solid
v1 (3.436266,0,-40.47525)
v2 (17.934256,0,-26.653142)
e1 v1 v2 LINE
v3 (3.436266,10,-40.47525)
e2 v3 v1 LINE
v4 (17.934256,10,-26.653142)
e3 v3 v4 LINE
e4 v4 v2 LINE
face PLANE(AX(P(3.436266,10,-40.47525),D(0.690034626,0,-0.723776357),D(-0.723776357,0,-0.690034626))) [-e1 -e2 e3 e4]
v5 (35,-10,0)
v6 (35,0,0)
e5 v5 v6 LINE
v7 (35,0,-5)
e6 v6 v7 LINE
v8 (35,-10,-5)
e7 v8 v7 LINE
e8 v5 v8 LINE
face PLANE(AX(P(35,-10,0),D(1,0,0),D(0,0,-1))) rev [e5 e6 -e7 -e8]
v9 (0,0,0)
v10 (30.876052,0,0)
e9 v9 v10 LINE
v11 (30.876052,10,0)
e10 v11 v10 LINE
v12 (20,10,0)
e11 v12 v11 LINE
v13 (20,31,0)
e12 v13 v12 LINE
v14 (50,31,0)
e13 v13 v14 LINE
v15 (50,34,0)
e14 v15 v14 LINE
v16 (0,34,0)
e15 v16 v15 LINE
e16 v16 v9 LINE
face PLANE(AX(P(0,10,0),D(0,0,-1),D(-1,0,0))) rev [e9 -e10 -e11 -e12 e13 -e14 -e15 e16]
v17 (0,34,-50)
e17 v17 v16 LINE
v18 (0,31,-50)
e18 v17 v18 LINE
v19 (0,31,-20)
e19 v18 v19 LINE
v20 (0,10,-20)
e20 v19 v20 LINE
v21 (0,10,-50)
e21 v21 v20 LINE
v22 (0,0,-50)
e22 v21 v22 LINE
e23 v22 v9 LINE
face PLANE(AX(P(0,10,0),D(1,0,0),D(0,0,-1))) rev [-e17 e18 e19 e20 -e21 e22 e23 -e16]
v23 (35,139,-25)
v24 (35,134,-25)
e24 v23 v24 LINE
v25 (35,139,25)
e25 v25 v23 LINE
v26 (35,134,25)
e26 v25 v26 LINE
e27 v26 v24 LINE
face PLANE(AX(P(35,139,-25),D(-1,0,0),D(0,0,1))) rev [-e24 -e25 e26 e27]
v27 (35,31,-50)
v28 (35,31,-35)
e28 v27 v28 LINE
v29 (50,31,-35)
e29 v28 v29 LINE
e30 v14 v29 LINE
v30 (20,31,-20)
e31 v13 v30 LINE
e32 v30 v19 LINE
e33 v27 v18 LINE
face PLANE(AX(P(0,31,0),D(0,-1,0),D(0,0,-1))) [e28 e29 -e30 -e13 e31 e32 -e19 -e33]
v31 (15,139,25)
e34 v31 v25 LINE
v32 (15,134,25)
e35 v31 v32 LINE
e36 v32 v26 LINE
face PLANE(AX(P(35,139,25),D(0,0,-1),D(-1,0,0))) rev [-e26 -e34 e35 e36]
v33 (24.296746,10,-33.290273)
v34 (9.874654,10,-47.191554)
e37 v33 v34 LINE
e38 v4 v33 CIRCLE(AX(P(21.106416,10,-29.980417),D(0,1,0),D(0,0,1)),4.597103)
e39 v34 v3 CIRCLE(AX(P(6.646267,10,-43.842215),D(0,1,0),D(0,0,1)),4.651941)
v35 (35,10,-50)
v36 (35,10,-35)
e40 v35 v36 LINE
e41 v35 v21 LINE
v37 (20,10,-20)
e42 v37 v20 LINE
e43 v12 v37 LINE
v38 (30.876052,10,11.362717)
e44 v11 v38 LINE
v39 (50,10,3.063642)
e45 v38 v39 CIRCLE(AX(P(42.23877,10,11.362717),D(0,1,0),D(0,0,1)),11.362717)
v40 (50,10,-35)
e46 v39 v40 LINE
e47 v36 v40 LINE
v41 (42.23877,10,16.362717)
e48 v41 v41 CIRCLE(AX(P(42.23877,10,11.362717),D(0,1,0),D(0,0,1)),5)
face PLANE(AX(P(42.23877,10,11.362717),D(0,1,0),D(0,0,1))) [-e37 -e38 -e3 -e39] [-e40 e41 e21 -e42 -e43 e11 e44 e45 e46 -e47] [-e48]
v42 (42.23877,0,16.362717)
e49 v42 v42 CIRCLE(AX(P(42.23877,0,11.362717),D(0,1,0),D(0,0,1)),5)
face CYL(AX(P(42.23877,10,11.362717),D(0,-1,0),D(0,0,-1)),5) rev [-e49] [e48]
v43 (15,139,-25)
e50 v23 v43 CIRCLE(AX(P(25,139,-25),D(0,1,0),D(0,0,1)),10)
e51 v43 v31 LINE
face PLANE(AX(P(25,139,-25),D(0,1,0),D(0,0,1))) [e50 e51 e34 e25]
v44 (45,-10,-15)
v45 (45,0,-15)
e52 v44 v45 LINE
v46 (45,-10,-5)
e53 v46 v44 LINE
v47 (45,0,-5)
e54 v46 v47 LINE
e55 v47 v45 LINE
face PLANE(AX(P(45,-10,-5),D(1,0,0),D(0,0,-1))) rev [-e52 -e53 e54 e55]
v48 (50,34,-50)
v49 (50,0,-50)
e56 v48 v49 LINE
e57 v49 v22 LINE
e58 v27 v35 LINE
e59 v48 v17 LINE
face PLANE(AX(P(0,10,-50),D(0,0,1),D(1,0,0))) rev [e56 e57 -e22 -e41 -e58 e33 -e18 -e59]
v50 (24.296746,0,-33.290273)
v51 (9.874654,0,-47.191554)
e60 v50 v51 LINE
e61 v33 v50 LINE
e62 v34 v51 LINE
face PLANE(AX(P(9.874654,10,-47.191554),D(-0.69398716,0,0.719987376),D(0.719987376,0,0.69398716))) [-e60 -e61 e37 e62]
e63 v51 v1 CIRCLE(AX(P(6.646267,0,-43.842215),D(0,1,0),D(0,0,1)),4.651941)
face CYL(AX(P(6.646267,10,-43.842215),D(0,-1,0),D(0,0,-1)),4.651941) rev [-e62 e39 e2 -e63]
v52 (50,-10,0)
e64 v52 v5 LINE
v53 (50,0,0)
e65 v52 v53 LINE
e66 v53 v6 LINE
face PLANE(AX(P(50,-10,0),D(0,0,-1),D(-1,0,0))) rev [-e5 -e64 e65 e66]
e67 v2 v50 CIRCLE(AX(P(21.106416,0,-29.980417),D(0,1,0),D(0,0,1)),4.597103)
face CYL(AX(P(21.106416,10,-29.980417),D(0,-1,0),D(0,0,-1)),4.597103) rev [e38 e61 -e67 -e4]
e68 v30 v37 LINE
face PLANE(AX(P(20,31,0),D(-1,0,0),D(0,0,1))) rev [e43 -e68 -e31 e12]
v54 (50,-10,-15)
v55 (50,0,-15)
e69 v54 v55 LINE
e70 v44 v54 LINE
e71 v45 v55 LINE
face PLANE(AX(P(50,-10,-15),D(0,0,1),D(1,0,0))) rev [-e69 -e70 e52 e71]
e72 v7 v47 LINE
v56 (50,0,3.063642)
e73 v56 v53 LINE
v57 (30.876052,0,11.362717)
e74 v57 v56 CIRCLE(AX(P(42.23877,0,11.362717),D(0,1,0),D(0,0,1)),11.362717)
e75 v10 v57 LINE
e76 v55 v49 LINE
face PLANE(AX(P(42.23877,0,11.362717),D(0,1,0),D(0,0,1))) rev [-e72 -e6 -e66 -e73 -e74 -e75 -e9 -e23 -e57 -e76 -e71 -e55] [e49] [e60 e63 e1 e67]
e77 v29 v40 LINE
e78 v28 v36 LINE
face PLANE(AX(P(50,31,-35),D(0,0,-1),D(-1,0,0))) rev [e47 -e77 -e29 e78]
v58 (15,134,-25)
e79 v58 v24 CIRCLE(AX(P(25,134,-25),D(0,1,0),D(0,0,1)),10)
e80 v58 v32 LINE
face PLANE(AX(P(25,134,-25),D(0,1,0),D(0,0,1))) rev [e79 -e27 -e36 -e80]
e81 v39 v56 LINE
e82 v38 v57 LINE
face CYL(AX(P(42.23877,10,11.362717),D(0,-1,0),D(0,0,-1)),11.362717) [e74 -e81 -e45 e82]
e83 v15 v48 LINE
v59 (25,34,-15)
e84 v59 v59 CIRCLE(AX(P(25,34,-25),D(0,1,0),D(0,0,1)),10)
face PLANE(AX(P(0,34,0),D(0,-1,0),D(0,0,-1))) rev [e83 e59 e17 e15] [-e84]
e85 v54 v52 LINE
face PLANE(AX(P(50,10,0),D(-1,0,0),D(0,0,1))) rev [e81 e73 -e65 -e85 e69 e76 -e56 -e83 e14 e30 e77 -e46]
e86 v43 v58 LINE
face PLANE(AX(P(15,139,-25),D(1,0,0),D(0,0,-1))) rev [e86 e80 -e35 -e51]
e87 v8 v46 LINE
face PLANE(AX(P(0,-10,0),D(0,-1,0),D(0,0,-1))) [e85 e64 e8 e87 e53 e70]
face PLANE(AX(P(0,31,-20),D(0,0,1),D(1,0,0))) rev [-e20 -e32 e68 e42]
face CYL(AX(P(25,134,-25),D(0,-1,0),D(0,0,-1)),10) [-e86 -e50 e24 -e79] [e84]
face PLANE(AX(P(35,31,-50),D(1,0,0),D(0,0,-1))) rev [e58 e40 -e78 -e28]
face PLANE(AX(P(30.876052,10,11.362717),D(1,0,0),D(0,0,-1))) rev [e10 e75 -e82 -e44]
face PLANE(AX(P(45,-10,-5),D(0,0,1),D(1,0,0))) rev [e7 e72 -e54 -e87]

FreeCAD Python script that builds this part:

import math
import FreeCAD as App
import Part
import Sketcher
from FreeCAD import Vector

doc = App.newDocument("Part")
body = doc.addObject("PartDesign::Body", "Body")

sketch1 = body.newObject("Sketcher::SketchObject", "Sketch")
sketch1.AttachmentSupport = (doc.getObject("XZ_Plane"), [""])
sketch1.MapMode = "FlatFace"
sketch1.addGeometry([
    Part.LineSegment(Vector(0, 0, 0), Vector(30.9, 0, 0)),
    Part.LineSegment(Vector(30.9, 0, 0), Vector(30.9, 11.4, 0)),
    Part.ArcOfCircle(Part.Circle(Vector(42.2, 11.4, 0), Vector(0, 0, 1), 11.4), math.radians(-47), math.radians(180)),
    Part.LineSegment(Vector(50, 3.1, 0), Vector(50, -50, 0)),
    Part.LineSegment(Vector(50, -50, 0), Vector(0, -50, 0)),
    Part.LineSegment(Vector(0, -50, 0), Vector(0, 0, 0)),
    Part.Circle(Vector(42.2, 11.4, 0), Vector(0, 0, 1), 5),
    Part.ArcOfCircle(Part.Circle(Vector(6.6, -43.8, 0), Vector(0, 0, 1), 4.7), math.radians(134), math.radians(314)),
    Part.LineSegment(Vector(9.9, -47.2, 0), Vector(24.3, -33.3, 0)),
    Part.ArcOfCircle(Part.Circle(Vector(21.1, -30, 0), Vector(0, 0, 1), 4.6), math.radians(-46), math.radians(134)),
    Part.LineSegment(Vector(17.9, -26.7, 0), Vector(3.4, -40.5, 0)),
], False)
sketch1.addConstraint([
    Sketcher.Constraint("Coincident", 0, 2, 1, 1),
    Sketcher.Constraint("Tangent", 1, 2, 2, 2),
    Sketcher.Constraint("Coincident", 2, 1, 3, 1),
    Sketcher.Constraint("Coincident", 3, 2, 4, 1),
    Sketcher.Constraint("Coincident", 4, 2, 5, 1),
    Sketcher.Constraint("Coincident", 5, 2, 0, 1),
    Sketcher.Constraint("Tangent", 7, 2, 8, 1),
    Sketcher.Constraint("Tangent", 8, 2, 9, 1),
    Sketcher.Constraint("Tangent", 9, 2, 10, 1),
    Sketcher.Constraint("Tangent", 10, 2, 7, 1),
    Sketcher.Constraint("Horizontal", 0),
    Sketcher.Constraint("Vertical", 1),
    Sketcher.Constraint("Vertical", 3),
    Sketcher.Constraint("Horizontal", 4),
    Sketcher.Constraint("Vertical", 5),
    Sketcher.Constraint("Coincident", 5, 2, -1, 1),
    Sketcher.Constraint("Coincident", 6, 3, 2, 3),
    Sketcher.Constraint("Equal", 4, 5),
    Sketcher.Constraint("Diameter", 6, 10.0),
    Sketcher.Constraint("DistanceX", 4, 2, 4, 1, 50.0),
    Sketcher.Constraint("Radius", 7, 4.651941),
    Sketcher.Constraint("DistanceX", 10, 2, 7, 3, 3.210001),
    Sketcher.Constraint("Radius", 2, 11.362717),
    Sketcher.Constraint("Radius", 9, 4.597103),
    Sketcher.Constraint("DistanceY", 7, 3, 9, 3, 13.861798),
    Sketcher.Constraint("DistanceX", 0, 1, 0, 2, 30.876052),
    Sketcher.Constraint("DistanceY", 1, 1, 1, 2, 11.362717),
    Sketcher.Constraint("DistanceY", 10, 2, -1, 1, 40.47525),
    Sketcher.Constraint("DistanceX", -1, 1, 7, 3, 6.646267),
])
pad1 = body.newObject("PartDesign::Pad", "Pad")
pad1.Profile = sketch1
pad1.Length = 10
pad1.Reversed = True

sketch2 = body.newObject("Sketcher::SketchObject", "Sketch001")
sketch2.AttachmentSupport = (doc.getObject("XZ_Plane"), [""])
sketch2.MapMode = "FlatFace"
sketch2.addGeometry([
    Part.LineSegment(Vector(35, -5, 0), Vector(45, -5, 0)),
    Part.LineSegment(Vector(45, -5, 0), Vector(45, -15, 0)),
    Part.LineSegment(Vector(45, -15, 0), Vector(50, -15, 0)),
    Part.LineSegment(Vector(50, -15, 0), Vector(50, 0, 0)),
    Part.LineSegment(Vector(50, 0, 0), Vector(35, 0, 0)),
    Part.LineSegment(Vector(35, 0, 0), Vector(35, -5, 0)),
], False)
sketch2.addConstraint([
    Sketcher.Constraint("Coincident", 0, 2, 1, 1),
    Sketcher.Constraint("Coincident", 1, 2, 2, 1),
    Sketcher.Constraint("Coincident", 2, 2, 3, 1),
    Sketcher.Constraint("Coincident", 3, 2, 4, 1),
    Sketcher.Constraint("Coincident", 4, 2, 5, 1),
    Sketcher.Constraint("Coincident", 5, 2, 0, 1),
    Sketcher.Constraint("Horizontal", 0),
    Sketcher.Constraint("Vertical", 1),
    Sketcher.Constraint("Horizontal", 2),
    Sketcher.Constraint("Vertical", 3),
    Sketcher.Constraint("Horizontal", 4),
    Sketcher.Constraint("Vertical", 5),
    Sketcher.Constraint("PointOnObject", 3, 2, -1),
    Sketcher.Constraint("Equal", 0, 1),
    Sketcher.Constraint("Equal", 4, 3),
    Sketcher.Constraint("DistanceX", 0, 1, 0, 2, 10.0),
    Sketcher.Constraint("DistanceX", 2, 1, 2, 2, 5.0),
    Sketcher.Constraint("DistanceX", -1, 1, 0, 2, 45.0),
])
pad2 = body.newObject("PartDesign::Pad", "Pad001")
pad2.Profile = sketch2
pad2.Length = 10

sketch3 = body.newObject("Sketcher::SketchObject", "Sketch002")
sketch3.AttachmentSupport = (doc.getObject("XZ_Plane"), [""])
sketch3.MapMode = "FlatFace"
sketch3.AttachmentOffset = App.Placement(Vector(0, 0, -10), App.Rotation())
sketch3.addGeometry([
    Part.LineSegment(Vector(0, -20, 0), Vector(0, 0, 0)),
    Part.LineSegment(Vector(0, 0, 0), Vector(20, 0, 0)),
    Part.LineSegment(Vector(20, 0, 0), Vector(20, -20, 0)),
    Part.LineSegment(Vector(20, -20, 0), Vector(0, -20, 0)),
    Part.LineSegment(Vector(35, -50, 0), Vector(35, -35, 0)),
    Part.LineSegment(Vector(35, -35, 0), Vector(50, -35, 0)),
    Part.LineSegment(Vector(50, -35, 0), Vector(50, -50, 0)),
    Part.LineSegment(Vector(50, -50, 0), Vector(35, -50, 0)),
], False)
sketch3.addConstraint([
    Sketcher.Constraint("Coincident", 0, 2, 1, 1),
    Sketcher.Constraint("Coincident", 1, 2, 2, 1),
    Sketcher.Constraint("Coincident", 2, 2, 3, 1),
    Sketcher.Constraint("Coincident", 3, 2, 0, 1),
    Sketcher.Constraint("Coincident", 4, 2, 5, 1),
    Sketcher.Constraint("Coincident", 5, 2, 6, 1),
    Sketcher.Constraint("Coincident", 6, 2, 7, 1),
    Sketcher.Constraint("Coincident", 7, 2, 4, 1),
    Sketcher.Constraint("Vertical", 0),
    Sketcher.Constraint("Horizontal", 1),
    Sketcher.Constraint("Vertical", 2),
    Sketcher.Constraint("Horizontal", 3),
    Sketcher.Constraint("Vertical", 4),
    Sketcher.Constraint("Horizontal", 5),
    Sketcher.Constraint("Vertical", 6),
    Sketcher.Constraint("Horizontal", 7),
    Sketcher.Constraint("Coincident", 0, 2, -1, 1),
    Sketcher.Constraint("Equal", 3, 0),
    Sketcher.Constraint("Equal", 7, 4),
    Sketcher.Constraint("DistanceX", 1, 1, 1, 2, 20.0),
    Sketcher.Constraint("DistanceX", 5, 1, 5, 2, 15.0),
    Sketcher.Constraint("DistanceX", -1, 1, 4, 2, 35.0),
    Sketcher.Constraint("DistanceY", 4, 2, -1, 1, 35.0),
])
pad3 = body.newObject("PartDesign::Pad", "Pad002")
pad3.Profile = sketch3
pad3.Length = 21
pad3.Reversed = True

sketch4 = body.newObject("Sketcher::SketchObject", "Sketch003")
sketch4.AttachmentSupport = (doc.getObject("XZ_Plane"), [""])
sketch4.MapMode = "FlatFace"
sketch4.AttachmentOffset = App.Placement(Vector(0, 0, -31), App.Rotation())
sketch4.addGeometry([
    Part.LineSegment(Vector(0, -50, 0), Vector(0, 0, 0)),
    Part.LineSegment(Vector(0, 0, 0), Vector(50, 0, 0)),
    Part.LineSegment(Vector(50, 0, 0), Vector(50, -50, 0)),
    Part.LineSegment(Vector(50, -50, 0), Vector(0, -50, 0)),
], False)
sketch4.addConstraint([
    Sketcher.Constraint("Coincident", 0, 2, 1, 1),
    Sketcher.Constraint("Coincident", 1, 2, 2, 1),
    Sketcher.Constraint("Coincident", 2, 2, 3, 1),
    Sketcher.Constraint("Coincident", 3, 2, 0, 1),
    Sketcher.Constraint("Vertical", 0),
    Sketcher.Constraint("Horizontal", 1),
    Sketcher.Constraint("Vertical", 2),
    Sketcher.Constraint("Horizontal", 3),
    Sketcher.Constraint("Coincident", 0, 2, -1, 1),
    Sketcher.Constraint("Equal", 3, 0),
    Sketcher.Constraint("DistanceX", 1, 1, 1, 2, 50.0),
])
pad4 = body.newObject("PartDesign::Pad", "Pad003")
pad4.Profile = sketch4
pad4.Length = 3
pad4.Reversed = True

sketch5 = body.newObject("Sketcher::SketchObject", "Sketch004")
sketch5.AttachmentSupport = (doc.getObject("XZ_Plane"), [""])
sketch5.MapMode = "FlatFace"
sketch5.AttachmentOffset = App.Placement(Vector(0, 0, -34), App.Rotation())
sketch5.addGeometry(Part.Circle(Vector(25, -25, 0), Vector(0, 0, 1), 10), False)
sketch5.addConstraint([
    Sketcher.Constraint("Diameter", 0, 20.0),
    Sketcher.Constraint("DistanceX", -1, 1, 0, 3, 25.0),
    Sketcher.Constraint("DistanceY", 0, 3, -1, 1, 25.0),
])
pad5 = body.newObject("PartDesign::Pad", "Pad004")
pad5.Profile = sketch5
pad5.Length = 100
pad5.Reversed = True

sketch6 = body.newObject("Sketcher::SketchObject", "Sketch005")
sketch6.AttachmentSupport = (doc.getObject("XZ_Plane"), [""])
sketch6.MapMode = "FlatFace"
sketch6.AttachmentOffset = App.Placement(Vector(0, 0, -134), App.Rotation())
sketch6.addGeometry([
    Part.LineSegment(Vector(35, 25, 0), Vector(35, -25, 0)),
    Part.ArcOfCircle(Part.Circle(Vector(25, -25, 0), Vector(0, 0, 1), 10), math.radians(180), math.radians(360)),
    Part.LineSegment(Vector(15, -25, 0), Vector(15, 25, 0)),
    Part.LineSegment(Vector(15, 25, 0), Vector(35, 25, 0)),
], False)
sketch6.addConstraint([
    Sketcher.Constraint("Tangent", 0, 2, 1, 2),
    Sketcher.Constraint("Tangent", 1, 1, 2, 1),
    Sketcher.Constraint("Coincident", 2, 2, 3, 1),
    Sketcher.Constraint("Coincident", 3, 2, 0, 1),
    Sketcher.Constraint("Vertical", 0),
    Sketcher.Constraint("Vertical", 2),
    Sketcher.Constraint("Horizontal", 3),
    Sketcher.Constraint("Radius", 1, 10.0),
    Sketcher.Constraint("DistanceY", 0, 2, 0, 1, 50.0),
    Sketcher.Constraint("DistanceX", -1, 1, 1, 3, 25.0),
    Sketcher.Constraint("DistanceY", 1, 3, -1, 1, 25.0),
])
pad6 = body.newObject("PartDesign::Pad", "Pad005")
pad6.Profile = sketch6
pad6.Length = 5
pad6.Reversed = True

doc.recompute()
